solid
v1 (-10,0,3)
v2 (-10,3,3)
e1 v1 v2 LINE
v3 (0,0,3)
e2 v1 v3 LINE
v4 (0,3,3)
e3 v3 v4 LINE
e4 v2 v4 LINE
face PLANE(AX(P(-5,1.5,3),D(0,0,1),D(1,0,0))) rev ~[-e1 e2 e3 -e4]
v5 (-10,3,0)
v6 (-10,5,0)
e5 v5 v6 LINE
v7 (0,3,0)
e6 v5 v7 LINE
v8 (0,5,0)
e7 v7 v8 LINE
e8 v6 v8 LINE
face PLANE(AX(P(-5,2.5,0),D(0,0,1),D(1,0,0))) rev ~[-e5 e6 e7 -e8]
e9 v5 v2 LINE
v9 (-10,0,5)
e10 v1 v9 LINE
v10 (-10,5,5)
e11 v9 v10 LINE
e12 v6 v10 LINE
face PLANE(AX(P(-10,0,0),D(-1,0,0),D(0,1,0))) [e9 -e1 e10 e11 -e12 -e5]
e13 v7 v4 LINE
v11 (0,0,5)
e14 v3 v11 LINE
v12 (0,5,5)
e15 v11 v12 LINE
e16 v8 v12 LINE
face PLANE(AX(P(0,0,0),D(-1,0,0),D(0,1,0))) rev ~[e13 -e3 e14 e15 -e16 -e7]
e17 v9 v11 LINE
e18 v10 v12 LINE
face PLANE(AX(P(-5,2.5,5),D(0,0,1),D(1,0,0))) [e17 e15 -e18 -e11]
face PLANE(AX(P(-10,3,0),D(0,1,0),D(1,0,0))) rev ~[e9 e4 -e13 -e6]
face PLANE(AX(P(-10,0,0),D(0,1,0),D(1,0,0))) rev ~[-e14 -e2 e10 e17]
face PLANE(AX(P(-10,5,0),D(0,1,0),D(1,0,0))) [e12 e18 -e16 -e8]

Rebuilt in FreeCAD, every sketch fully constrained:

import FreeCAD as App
import Part
import Sketcher

V = App.Vector


def add_polygon(sketch, points):
    """Adds a closed chain of lines whose ends are joined by coincident constraints."""
    first, n = sketch.GeometryCount, len(points)
    for a, b in zip(points, points[1:] + points[:1]):
        sketch.addGeometry(Part.LineSegment(App.Vector(*a, 0), App.Vector(*b, 0)), False)
    for i in range(n):
        sketch.addConstraint(Sketcher.Constraint("Coincident", first + i, 2, first + (i + 1) % n, 1))

doc = App.newDocument("Part")
params = doc.addObject("Spreadsheet::Sheet", "Params")
for row, (alias, value) in enumerate([
    ("sketch1_width", "10 mm"),
    ("sketch1_height", "5 mm"),
    ("pad1_length", "5 mm"),
    ("sketch2_width", "10 mm"),
    ("sketch2_height", "3 mm"),
    ("pocket1_length", "3 mm"),
], start=1):
    params.set(f"A{row}", alias)
    params.set(f"B{row}", "=" + value)
    params.setAlias(f"B{row}", alias)

body = doc.addObject("PartDesign::Body", "Body")

sketch1 = body.newObject("Sketcher::SketchObject", "Sketch")
sketch1.AttachmentSupport = (doc.getObject("XY_Plane"), [""])
sketch1.MapMode = "FlatFace"
add_polygon(sketch1, [(-10, 5), (-10, 0), (0, 0), (0, 5)])
sketch1.addConstraint(Sketcher.Constraint("Vertical", 0))
sketch1.addConstraint(Sketcher.Constraint("Horizontal", 1))
sketch1.addConstraint(Sketcher.Constraint("Vertical", 2))
sketch1.addConstraint(Sketcher.Constraint("Horizontal", 3))
sketch1.addConstraint(Sketcher.Constraint("Coincident", 1, 2, -1, 1))
sketch1.addConstraint(Sketcher.Constraint("DistanceX", 1, 1, 1, 2, 10.0))
sketch1.addConstraint(Sketcher.Constraint("DistanceY", 0, 2, 0, 1, 5.0))
sketch1.setExpression("Constraints[9]", "Params.sketch1_width")
sketch1.setExpression("Constraints[10]", "Params.sketch1_height")
pad1 = body.newObject("PartDesign::Pad", "Pad")
pad1.Profile = sketch1
pad1.setExpression("Length", "Params.pad1_length")

sketch2 = body.newObject("Sketcher::SketchObject", "Sketch001")
sketch2.AttachmentSupport = (doc.getObject("XY_Plane"), [""])
sketch2.MapMode = "FlatFace"
add_polygon(sketch2, [(-10, 3), (-10, 0), (0, 0), (0, 3)])
sketch2.addConstraint(Sketcher.Constraint("Vertical", 0))
sketch2.addConstraint(Sketcher.Constraint("Horizontal", 1))
sketch2.addConstraint(Sketcher.Constraint("Vertical", 2))
sketch2.addConstraint(Sketcher.Constraint("Horizontal", 3))
sketch2.addConstraint(Sketcher.Constraint("Coincident", 1, 2, -1, 1))
sketch2.addConstraint(Sketcher.Constraint("DistanceX", 1, 1, 1, 2, 10.0))
sketch2.addConstraint(Sketcher.Constraint("DistanceY", 0, 2, 0, 1, 3.0))
sketch2.setExpression("Constraints[9]", "Params.sketch2_width")
sketch2.setExpression("Constraints[10]", "Params.sketch2_height")
pocket1 = body.newObject("PartDesign::Pocket", "Pocket")
pocket1.Profile = sketch2
pocket1.setExpression("Length", "Params.pocket1_length")
pocket1.Reversed = True

doc.recompute()
